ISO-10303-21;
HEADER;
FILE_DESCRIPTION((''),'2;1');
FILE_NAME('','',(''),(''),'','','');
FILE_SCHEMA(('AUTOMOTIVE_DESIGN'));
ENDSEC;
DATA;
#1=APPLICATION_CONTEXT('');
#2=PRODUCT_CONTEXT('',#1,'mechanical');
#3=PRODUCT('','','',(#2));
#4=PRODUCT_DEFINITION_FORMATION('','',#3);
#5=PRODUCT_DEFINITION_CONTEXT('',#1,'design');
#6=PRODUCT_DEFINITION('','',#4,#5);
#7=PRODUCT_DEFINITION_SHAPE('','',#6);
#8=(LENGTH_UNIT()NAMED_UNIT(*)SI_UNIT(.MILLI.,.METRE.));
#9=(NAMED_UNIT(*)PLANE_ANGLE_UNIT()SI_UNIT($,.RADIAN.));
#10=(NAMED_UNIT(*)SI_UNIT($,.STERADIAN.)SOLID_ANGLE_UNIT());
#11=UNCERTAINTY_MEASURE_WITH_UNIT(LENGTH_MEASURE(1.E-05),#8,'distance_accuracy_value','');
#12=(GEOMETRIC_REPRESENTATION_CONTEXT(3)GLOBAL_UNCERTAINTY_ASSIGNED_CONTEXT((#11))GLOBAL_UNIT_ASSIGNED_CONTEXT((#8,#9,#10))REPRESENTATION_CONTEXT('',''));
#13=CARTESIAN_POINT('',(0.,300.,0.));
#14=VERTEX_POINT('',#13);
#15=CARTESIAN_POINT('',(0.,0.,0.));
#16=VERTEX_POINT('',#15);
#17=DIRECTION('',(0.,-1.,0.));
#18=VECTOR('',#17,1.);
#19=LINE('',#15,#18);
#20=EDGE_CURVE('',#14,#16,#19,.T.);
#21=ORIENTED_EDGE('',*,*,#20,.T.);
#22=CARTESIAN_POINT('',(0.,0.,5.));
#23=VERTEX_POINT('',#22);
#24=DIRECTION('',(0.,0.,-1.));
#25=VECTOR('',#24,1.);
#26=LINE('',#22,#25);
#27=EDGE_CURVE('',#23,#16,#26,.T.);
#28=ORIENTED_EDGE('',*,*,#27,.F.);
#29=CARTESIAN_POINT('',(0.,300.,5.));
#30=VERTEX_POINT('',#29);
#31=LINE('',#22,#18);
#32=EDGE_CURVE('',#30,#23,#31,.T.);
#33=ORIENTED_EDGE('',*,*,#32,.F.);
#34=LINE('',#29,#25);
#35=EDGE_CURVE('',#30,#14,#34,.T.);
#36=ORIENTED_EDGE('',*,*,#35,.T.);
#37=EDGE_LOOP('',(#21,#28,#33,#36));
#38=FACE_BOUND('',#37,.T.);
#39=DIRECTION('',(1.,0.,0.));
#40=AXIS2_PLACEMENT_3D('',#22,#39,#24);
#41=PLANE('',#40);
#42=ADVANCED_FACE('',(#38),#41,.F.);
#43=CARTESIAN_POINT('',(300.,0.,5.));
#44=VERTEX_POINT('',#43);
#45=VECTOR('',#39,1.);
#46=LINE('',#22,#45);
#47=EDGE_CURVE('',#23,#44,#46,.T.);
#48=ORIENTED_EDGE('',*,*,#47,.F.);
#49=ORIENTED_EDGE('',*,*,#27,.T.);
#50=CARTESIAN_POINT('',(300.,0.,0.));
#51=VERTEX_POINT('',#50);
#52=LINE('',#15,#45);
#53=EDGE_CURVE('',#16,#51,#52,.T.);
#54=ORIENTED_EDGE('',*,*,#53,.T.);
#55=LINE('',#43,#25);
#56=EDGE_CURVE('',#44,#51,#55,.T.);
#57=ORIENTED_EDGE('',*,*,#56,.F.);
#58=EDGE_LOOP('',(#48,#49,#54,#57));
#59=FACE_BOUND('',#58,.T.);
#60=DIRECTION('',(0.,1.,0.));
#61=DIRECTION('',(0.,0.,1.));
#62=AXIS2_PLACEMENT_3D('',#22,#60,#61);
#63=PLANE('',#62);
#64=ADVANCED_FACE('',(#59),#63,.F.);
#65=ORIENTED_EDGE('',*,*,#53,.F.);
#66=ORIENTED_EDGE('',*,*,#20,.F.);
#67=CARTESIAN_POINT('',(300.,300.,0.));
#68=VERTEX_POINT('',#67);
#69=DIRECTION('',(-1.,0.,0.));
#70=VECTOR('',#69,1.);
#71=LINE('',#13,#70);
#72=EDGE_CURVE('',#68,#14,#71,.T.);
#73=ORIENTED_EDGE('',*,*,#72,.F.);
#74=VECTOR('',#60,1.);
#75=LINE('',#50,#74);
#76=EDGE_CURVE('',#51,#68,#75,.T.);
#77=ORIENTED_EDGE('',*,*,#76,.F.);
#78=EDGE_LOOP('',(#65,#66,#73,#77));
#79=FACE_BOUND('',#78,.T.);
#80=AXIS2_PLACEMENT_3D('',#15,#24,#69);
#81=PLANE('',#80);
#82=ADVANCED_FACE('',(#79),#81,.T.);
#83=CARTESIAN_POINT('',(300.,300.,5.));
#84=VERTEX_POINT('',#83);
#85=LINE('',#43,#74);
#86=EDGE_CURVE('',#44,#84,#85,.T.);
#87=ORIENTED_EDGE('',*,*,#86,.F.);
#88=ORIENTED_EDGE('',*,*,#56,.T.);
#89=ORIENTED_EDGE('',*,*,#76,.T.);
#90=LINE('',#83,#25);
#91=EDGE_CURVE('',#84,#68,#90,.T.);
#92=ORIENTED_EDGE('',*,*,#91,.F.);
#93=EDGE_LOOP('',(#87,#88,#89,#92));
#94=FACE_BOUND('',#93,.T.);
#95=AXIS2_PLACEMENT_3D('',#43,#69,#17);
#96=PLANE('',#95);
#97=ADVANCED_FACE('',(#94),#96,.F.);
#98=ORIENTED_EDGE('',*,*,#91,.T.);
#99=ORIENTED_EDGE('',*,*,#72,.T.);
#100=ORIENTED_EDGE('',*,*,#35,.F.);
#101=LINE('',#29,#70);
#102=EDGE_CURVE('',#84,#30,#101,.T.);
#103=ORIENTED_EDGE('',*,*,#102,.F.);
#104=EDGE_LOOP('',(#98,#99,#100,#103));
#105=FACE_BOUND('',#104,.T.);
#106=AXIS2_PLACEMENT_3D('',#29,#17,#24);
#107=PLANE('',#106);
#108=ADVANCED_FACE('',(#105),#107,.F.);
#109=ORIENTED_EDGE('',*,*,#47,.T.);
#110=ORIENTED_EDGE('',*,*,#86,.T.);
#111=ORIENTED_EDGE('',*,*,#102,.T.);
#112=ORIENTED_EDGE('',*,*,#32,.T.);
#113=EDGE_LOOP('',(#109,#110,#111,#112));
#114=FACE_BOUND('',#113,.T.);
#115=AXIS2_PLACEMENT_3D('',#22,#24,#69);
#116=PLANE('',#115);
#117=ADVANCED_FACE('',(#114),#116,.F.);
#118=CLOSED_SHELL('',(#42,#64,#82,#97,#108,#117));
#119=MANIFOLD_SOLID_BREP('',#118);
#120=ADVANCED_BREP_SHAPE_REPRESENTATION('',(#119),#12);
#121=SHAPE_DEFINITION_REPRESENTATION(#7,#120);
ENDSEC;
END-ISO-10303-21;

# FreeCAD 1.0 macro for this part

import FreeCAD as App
import Part
import Sketcher

V = App.Vector

doc = App.newDocument("Part")
body = doc.addObject("PartDesign::Body", "Body")

# Sketch on XY plane
sketch1 = body.newObject("Sketcher::SketchObject", "Sketch")
sketch1.AttachmentSupport = (doc.getObject("XY_Plane"), [""])
sketch1.MapMode = "FlatFace"
sketch1.addGeometry(Part.LineSegment(V(0, 300, 0), V(0, 0, 0)), False)
sketch1.addGeometry(Part.LineSegment(V(0, 0, 0), V(300, 0, 0)), False)
sketch1.addGeometry(Part.LineSegment(V(300, 0, 0), V(300, 300, 0)), False)
sketch1.addGeometry(Part.LineSegment(V(300, 300, 0), V(0, 300, 0)), False)
sketch1.addConstraint(Sketcher.Constraint("Coincident", 0, 2, 1, 1))
sketch1.addConstraint(Sketcher.Constraint("Coincident", 1, 2, 2, 1))
sketch1.addConstraint(Sketcher.Constraint("Coincident", 2, 2, 3, 1))
sketch1.addConstraint(Sketcher.Constraint("Coincident", 3, 2, 0, 1))
sketch1.addConstraint(Sketcher.Constraint("Vertical", 0))
sketch1.addConstraint(Sketcher.Constraint("Horizontal", 1))
sketch1.addConstraint(Sketcher.Constraint("Vertical", 2))
sketch1.addConstraint(Sketcher.Constraint("Horizontal", 3))
sketch1.addConstraint(Sketcher.Constraint("Coincident", 0, 2, -1, 1))
sketch1.addConstraint(Sketcher.Constraint("Equal", 3, 0))
sketch1.addConstraint(Sketcher.Constraint("DistanceX", 1, 1, 1, 2, 300.0))
pad1 = body.newObject("PartDesign::Pad", "Pad")
pad1.Profile = sketch1
pad1.Length = 5

doc.recompute()
